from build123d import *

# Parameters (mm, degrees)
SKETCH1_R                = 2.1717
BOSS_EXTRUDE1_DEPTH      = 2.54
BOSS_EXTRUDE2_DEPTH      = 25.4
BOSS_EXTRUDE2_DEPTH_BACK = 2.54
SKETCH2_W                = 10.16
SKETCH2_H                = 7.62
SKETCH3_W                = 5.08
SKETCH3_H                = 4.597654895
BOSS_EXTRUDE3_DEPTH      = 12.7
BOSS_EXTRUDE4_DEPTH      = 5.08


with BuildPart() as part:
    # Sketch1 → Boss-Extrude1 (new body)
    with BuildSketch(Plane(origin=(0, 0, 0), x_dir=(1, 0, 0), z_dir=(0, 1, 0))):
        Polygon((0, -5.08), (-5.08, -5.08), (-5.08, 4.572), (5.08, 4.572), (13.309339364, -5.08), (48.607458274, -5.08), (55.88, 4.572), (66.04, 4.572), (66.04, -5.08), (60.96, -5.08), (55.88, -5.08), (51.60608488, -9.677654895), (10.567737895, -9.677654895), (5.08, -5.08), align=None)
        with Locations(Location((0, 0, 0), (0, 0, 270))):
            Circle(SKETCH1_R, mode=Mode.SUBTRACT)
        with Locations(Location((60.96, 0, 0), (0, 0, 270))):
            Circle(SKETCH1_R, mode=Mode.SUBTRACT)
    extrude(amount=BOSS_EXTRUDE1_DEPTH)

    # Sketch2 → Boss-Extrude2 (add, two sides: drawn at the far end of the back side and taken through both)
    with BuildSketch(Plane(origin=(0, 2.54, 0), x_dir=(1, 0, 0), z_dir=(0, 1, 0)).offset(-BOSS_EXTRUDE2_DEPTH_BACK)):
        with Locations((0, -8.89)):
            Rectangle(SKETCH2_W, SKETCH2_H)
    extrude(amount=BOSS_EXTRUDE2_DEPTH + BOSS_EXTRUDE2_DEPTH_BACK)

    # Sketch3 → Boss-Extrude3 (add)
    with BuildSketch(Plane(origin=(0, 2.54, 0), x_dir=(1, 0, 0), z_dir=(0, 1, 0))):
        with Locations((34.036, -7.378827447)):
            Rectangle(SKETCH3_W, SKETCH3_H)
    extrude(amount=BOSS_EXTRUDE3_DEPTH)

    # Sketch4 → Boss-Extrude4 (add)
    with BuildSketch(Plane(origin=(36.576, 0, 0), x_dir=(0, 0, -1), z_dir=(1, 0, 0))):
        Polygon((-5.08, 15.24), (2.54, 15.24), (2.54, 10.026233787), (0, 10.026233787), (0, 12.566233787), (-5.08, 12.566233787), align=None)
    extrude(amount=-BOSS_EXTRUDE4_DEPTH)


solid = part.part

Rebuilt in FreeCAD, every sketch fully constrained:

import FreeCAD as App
import Part
import Sketcher

V = App.Vector
Q = App.Units.Quantity


def add_polygon(sketch, points):
    """Adds a closed chain of lines whose ends are joined by coincident constraints."""
    first, n = sketch.GeometryCount, len(points)
    for a, b in zip(points, points[1:] + points[:1]):
        sketch.addGeometry(Part.LineSegment(App.Vector(*a, 0), App.Vector(*b, 0)), False)
    for i in range(n):
        sketch.addConstraint(Sketcher.Constraint("Coincident", first + i, 2, first + (i + 1) % n, 1))

doc = App.newDocument("Part")
params = doc.addObject("Spreadsheet::Sheet", "Params")
for row, (alias, value) in enumerate([
    ("sketch1_diameter", "0.171 in"),
    ("sketch1_width", "0.4 in"),
    ("sketch1_height", "0.38 in"),
    ("pad1_length", "0.1 in"),
    ("sketch2_width", "0.4 in"),
    ("sketch2_height", "0.3 in"),
    ("pad2_length", "1 in"),
    ("pad2_length2", "0.1 in"),
    ("sketch3_width", "0.2 in"),
    ("pad3_length", "0.5 in"),
    ("sketch4_width", "0.1 in"),
    ("sketch4_height", "0.3 in"),
    ("pad4_length", "0.2 in"),
], start=1):
    params.set(f"A{row}", alias)
    params.set(f"B{row}", "=" + value)
    params.setAlias(f"B{row}", alias)

body = doc.addObject("PartDesign::Body", "Body")

sketch1 = doc.addObject("Sketcher::SketchObject", "Sketch")
body.addObject(sketch1)
sketch1.AttachmentSupport = (doc.XZ_Plane, [""])
sketch1.MapMode = "FlatFace"
add_polygon(sketch1, [(-5.1, 5.1), (5.1, 5.1), (10.6, 9.7), (51.6, 9.7), (55.9, 5.1), (66, 5.1), (66, -4.6), (55.9, -4.6), (48.6, 5.1), (13.3, 5.1), (5.1, -4.6), (-5.1, -4.6)])
sketch1.addGeometry(Part.Circle(V(61, 0, 0), V(0, 0, 1), 2.2), False)
sketch1.addGeometry(Part.Circle(V(0, 0, 0), V(0, 0, 1), 2.2), False)
sketch1.addConstraint([
    Sketcher.Constraint("Horizontal", 0),
    Sketcher.Constraint("Horizontal", 2),
    Sketcher.Constraint("Horizontal", 4),
    Sketcher.Constraint("Vertical", 5),
    Sketcher.Constraint("Horizontal", 6),
    Sketcher.Constraint("Horizontal", 8),
    Sketcher.Constraint("Horizontal", 10),
    Sketcher.Constraint("Vertical", 11),
    Sketcher.Constraint("Coincident", 13, 3, -1, 1),
    Sketcher.Constraint("Equal", 12, 13),
    Sketcher.Constraint("PointOnObject", 12, 3, -1),
    Sketcher.Constraint("Horizontal", 0, 2, 3, 2),
    Sketcher.Constraint("Horizontal", 4, 2, 7, 2),
    Sketcher.Constraint("Horizontal", 6, 2, 9, 2),
    Sketcher.Constraint("Vertical", 3, 2, 6, 2),
    Sketcher.Constraint("Vertical", 0, 2, 9, 2),
    Sketcher.Constraint("Equal", 0, 4),
    Sketcher.Constraint("Diameter", 12, Q("0.171 in")),
    Sketcher.Constraint("DistanceX", 0, 1, 0, 2, Q("0.4 in")),
    Sketcher.Constraint("DistanceX", 0, 2, 3, 2, Q("2 in")),
    Sketcher.Constraint("DistanceY", 5, 2, 5, 1, Q("0.38 in")),
    Sketcher.Constraint("DistanceX", -1, 1, 12, 3, Q("2.4 in")),
    Sketcher.Constraint("DistanceX", -1, 1, 0, 2, Q("0.2 in")),
    Sketcher.Constraint("DistanceY", -1, 1, 0, 2, Q("0.2 in")),
    Sketcher.Constraint("DistanceX", 8, 2, 8, 1, 35.298119),
    Sketcher.Constraint("DistanceX", 1, 2, 8, 2, 2.741601),
    Sketcher.Constraint("Distance", 1, 7.159169),
    Sketcher.Constraint("Distance", 9, 12.683971),
    Sketcher.Constraint("DistanceX", 2, 1, 2, 2, 41.038347),
])
sketch1.setExpression("Constraints[29]", "Params.sketch1_diameter")
sketch1.setExpression("Constraints[30]", "Params.sketch1_width")
sketch1.setExpression("Constraints[32]", "Params.sketch1_height")
pad1 = doc.addObject("PartDesign::Pad", "Pad")
body.addObject(pad1)
pad1.Profile = sketch1
pad1.setExpression("Length", "Params.pad1_length")
pad1.Reversed = True

sketch2 = doc.addObject("Sketcher::SketchObject", "Sketch001")
body.addObject(sketch2)
sketch2.AttachmentSupport = (doc.XZ_Plane, [""])
sketch2.MapMode = "FlatFace"
sketch2.AttachmentOffset = App.Placement(V(0, 0, -0.1 * 25.4), App.Rotation())
add_polygon(sketch2, [(-5, 5), (-5, 13), (5, 13), (5, 5)])
sketch2.addConstraint([
    Sketcher.Constraint("Vertical", 0),
    Sketcher.Constraint("Horizontal", 1),
    Sketcher.Constraint("Vertical", 2),
    Sketcher.Constraint("Horizontal", 3),
    Sketcher.Constraint("DistanceX", 1, 1, 1, 2, Q("0.4 in")),
    Sketcher.Constraint("DistanceY", 0, 1, 0, 2, Q("0.3 in")),
    Sketcher.Constraint("DistanceX", 0, 2, -1, 1, Q("0.2 in")),
    Sketcher.Constraint("DistanceY", -1, 1, 0, 2, Q("0.5 in")),
])
sketch2.setExpression("Constraints[8]", "Params.sketch2_width")
sketch2.setExpression("Constraints[9]", "Params.sketch2_height")
pad2 = doc.addObject("PartDesign::Pad", "Pad001")
body.addObject(pad2)
pad2.Profile = sketch2
pad2.Type = "TwoLengths"
pad2.setExpression("Length", "Params.pad2_length")
pad2.setExpression("Length2", "Params.pad2_length2")
pad2.Reversed = True

sketch3 = doc.addObject("Sketcher::SketchObject", "Sketch002")
body.addObject(sketch3)
sketch3.AttachmentSupport = (doc.XZ_Plane, [""])
sketch3.MapMode = "FlatFace"
sketch3.AttachmentOffset = App.Placement(V(0, 0, -0.1 * 25.4), App.Rotation())
add_polygon(sketch3, [(31.5, 5.1), (31.5, 9.7), (36.6, 9.7), (36.6, 5.1)])
sketch3.addConstraint([
    Sketcher.Constraint("Vertical", 0),
    Sketcher.Constraint("Horizontal", 1),
    Sketcher.Constraint("Vertical", 2),
    Sketcher.Constraint("Horizontal", 3),
    Sketcher.Constraint("DistanceX", 1, 1, 1, 2, Q("0.2 in")),
    Sketcher.Constraint("DistanceY", -1, 1, 2, 2, Q("0.2 in")),
    Sketcher.Constraint("DistanceX", -1, 1, 0, 2, Q("1.24 in")),
    Sketcher.Constraint("DistanceY", 0, 1, 0, 2, 4.597655),
])
sketch3.setExpression("Constraints[8]", "Params.sketch3_width")
pad3 = doc.addObject("PartDesign::Pad", "Pad002")
body.addObject(pad3)
pad3.Profile = sketch3
pad3.setExpression("Length", "Params.pad3_length")
pad3.Reversed = True

sketch4 = doc.addObject("Sketcher::SketchObject", "Sketch003")
body.addObject(sketch4)
sketch4.AttachmentSupport = (doc.YZ_Plane, [""])
sketch4.MapMode = "FlatFace"
sketch4.AttachmentOffset = App.Placement(V(0, 0, 1.44 * 25.4), App.Rotation())
add_polygon(sketch4, [(15.2, -2.5), (15.2, 5.1), (12.6, 5.1), (12.6, 0), (10, 0), (10, -2.5)])
sketch4.addConstraint([
    Sketcher.Constraint("Vertical", 0),
    Sketcher.Constraint("Horizontal", 1),
    Sketcher.Constraint("Vertical", 2),
    Sketcher.Constraint("Horizontal", 3),
    Sketcher.Constraint("Vertical", 4),
    Sketcher.Constraint("Horizontal", 5),
    Sketcher.Constraint("PointOnObject", 2, 2, -1),
    Sketcher.Constraint("Equal", 3, 4),
    Sketcher.Constraint("DistanceX", 3, 2, 3, 1, Q("0.1 in")),
    Sketcher.Constraint("DistanceY", 0, 1, 0, 2, Q("0.3 in")),
    Sketcher.Constraint("DistanceX", -1, 1, 0, 2, Q("0.6 in")),
    Sketcher.Constraint("DistanceX", 1, 2, 1, 1, 2.673766),
])
sketch4.setExpression("Constraints[14]", "Params.sketch4_width")
sketch4.setExpression("Constraints[15]", "Params.sketch4_height")
pad4 = doc.addObject("PartDesign::Pad", "Pad003")
body.addObject(pad4)
pad4.Profile = sketch4
pad4.setExpression("Length", "Params.pad4_length")
pad4.Reversed = True

doc.recompute()
